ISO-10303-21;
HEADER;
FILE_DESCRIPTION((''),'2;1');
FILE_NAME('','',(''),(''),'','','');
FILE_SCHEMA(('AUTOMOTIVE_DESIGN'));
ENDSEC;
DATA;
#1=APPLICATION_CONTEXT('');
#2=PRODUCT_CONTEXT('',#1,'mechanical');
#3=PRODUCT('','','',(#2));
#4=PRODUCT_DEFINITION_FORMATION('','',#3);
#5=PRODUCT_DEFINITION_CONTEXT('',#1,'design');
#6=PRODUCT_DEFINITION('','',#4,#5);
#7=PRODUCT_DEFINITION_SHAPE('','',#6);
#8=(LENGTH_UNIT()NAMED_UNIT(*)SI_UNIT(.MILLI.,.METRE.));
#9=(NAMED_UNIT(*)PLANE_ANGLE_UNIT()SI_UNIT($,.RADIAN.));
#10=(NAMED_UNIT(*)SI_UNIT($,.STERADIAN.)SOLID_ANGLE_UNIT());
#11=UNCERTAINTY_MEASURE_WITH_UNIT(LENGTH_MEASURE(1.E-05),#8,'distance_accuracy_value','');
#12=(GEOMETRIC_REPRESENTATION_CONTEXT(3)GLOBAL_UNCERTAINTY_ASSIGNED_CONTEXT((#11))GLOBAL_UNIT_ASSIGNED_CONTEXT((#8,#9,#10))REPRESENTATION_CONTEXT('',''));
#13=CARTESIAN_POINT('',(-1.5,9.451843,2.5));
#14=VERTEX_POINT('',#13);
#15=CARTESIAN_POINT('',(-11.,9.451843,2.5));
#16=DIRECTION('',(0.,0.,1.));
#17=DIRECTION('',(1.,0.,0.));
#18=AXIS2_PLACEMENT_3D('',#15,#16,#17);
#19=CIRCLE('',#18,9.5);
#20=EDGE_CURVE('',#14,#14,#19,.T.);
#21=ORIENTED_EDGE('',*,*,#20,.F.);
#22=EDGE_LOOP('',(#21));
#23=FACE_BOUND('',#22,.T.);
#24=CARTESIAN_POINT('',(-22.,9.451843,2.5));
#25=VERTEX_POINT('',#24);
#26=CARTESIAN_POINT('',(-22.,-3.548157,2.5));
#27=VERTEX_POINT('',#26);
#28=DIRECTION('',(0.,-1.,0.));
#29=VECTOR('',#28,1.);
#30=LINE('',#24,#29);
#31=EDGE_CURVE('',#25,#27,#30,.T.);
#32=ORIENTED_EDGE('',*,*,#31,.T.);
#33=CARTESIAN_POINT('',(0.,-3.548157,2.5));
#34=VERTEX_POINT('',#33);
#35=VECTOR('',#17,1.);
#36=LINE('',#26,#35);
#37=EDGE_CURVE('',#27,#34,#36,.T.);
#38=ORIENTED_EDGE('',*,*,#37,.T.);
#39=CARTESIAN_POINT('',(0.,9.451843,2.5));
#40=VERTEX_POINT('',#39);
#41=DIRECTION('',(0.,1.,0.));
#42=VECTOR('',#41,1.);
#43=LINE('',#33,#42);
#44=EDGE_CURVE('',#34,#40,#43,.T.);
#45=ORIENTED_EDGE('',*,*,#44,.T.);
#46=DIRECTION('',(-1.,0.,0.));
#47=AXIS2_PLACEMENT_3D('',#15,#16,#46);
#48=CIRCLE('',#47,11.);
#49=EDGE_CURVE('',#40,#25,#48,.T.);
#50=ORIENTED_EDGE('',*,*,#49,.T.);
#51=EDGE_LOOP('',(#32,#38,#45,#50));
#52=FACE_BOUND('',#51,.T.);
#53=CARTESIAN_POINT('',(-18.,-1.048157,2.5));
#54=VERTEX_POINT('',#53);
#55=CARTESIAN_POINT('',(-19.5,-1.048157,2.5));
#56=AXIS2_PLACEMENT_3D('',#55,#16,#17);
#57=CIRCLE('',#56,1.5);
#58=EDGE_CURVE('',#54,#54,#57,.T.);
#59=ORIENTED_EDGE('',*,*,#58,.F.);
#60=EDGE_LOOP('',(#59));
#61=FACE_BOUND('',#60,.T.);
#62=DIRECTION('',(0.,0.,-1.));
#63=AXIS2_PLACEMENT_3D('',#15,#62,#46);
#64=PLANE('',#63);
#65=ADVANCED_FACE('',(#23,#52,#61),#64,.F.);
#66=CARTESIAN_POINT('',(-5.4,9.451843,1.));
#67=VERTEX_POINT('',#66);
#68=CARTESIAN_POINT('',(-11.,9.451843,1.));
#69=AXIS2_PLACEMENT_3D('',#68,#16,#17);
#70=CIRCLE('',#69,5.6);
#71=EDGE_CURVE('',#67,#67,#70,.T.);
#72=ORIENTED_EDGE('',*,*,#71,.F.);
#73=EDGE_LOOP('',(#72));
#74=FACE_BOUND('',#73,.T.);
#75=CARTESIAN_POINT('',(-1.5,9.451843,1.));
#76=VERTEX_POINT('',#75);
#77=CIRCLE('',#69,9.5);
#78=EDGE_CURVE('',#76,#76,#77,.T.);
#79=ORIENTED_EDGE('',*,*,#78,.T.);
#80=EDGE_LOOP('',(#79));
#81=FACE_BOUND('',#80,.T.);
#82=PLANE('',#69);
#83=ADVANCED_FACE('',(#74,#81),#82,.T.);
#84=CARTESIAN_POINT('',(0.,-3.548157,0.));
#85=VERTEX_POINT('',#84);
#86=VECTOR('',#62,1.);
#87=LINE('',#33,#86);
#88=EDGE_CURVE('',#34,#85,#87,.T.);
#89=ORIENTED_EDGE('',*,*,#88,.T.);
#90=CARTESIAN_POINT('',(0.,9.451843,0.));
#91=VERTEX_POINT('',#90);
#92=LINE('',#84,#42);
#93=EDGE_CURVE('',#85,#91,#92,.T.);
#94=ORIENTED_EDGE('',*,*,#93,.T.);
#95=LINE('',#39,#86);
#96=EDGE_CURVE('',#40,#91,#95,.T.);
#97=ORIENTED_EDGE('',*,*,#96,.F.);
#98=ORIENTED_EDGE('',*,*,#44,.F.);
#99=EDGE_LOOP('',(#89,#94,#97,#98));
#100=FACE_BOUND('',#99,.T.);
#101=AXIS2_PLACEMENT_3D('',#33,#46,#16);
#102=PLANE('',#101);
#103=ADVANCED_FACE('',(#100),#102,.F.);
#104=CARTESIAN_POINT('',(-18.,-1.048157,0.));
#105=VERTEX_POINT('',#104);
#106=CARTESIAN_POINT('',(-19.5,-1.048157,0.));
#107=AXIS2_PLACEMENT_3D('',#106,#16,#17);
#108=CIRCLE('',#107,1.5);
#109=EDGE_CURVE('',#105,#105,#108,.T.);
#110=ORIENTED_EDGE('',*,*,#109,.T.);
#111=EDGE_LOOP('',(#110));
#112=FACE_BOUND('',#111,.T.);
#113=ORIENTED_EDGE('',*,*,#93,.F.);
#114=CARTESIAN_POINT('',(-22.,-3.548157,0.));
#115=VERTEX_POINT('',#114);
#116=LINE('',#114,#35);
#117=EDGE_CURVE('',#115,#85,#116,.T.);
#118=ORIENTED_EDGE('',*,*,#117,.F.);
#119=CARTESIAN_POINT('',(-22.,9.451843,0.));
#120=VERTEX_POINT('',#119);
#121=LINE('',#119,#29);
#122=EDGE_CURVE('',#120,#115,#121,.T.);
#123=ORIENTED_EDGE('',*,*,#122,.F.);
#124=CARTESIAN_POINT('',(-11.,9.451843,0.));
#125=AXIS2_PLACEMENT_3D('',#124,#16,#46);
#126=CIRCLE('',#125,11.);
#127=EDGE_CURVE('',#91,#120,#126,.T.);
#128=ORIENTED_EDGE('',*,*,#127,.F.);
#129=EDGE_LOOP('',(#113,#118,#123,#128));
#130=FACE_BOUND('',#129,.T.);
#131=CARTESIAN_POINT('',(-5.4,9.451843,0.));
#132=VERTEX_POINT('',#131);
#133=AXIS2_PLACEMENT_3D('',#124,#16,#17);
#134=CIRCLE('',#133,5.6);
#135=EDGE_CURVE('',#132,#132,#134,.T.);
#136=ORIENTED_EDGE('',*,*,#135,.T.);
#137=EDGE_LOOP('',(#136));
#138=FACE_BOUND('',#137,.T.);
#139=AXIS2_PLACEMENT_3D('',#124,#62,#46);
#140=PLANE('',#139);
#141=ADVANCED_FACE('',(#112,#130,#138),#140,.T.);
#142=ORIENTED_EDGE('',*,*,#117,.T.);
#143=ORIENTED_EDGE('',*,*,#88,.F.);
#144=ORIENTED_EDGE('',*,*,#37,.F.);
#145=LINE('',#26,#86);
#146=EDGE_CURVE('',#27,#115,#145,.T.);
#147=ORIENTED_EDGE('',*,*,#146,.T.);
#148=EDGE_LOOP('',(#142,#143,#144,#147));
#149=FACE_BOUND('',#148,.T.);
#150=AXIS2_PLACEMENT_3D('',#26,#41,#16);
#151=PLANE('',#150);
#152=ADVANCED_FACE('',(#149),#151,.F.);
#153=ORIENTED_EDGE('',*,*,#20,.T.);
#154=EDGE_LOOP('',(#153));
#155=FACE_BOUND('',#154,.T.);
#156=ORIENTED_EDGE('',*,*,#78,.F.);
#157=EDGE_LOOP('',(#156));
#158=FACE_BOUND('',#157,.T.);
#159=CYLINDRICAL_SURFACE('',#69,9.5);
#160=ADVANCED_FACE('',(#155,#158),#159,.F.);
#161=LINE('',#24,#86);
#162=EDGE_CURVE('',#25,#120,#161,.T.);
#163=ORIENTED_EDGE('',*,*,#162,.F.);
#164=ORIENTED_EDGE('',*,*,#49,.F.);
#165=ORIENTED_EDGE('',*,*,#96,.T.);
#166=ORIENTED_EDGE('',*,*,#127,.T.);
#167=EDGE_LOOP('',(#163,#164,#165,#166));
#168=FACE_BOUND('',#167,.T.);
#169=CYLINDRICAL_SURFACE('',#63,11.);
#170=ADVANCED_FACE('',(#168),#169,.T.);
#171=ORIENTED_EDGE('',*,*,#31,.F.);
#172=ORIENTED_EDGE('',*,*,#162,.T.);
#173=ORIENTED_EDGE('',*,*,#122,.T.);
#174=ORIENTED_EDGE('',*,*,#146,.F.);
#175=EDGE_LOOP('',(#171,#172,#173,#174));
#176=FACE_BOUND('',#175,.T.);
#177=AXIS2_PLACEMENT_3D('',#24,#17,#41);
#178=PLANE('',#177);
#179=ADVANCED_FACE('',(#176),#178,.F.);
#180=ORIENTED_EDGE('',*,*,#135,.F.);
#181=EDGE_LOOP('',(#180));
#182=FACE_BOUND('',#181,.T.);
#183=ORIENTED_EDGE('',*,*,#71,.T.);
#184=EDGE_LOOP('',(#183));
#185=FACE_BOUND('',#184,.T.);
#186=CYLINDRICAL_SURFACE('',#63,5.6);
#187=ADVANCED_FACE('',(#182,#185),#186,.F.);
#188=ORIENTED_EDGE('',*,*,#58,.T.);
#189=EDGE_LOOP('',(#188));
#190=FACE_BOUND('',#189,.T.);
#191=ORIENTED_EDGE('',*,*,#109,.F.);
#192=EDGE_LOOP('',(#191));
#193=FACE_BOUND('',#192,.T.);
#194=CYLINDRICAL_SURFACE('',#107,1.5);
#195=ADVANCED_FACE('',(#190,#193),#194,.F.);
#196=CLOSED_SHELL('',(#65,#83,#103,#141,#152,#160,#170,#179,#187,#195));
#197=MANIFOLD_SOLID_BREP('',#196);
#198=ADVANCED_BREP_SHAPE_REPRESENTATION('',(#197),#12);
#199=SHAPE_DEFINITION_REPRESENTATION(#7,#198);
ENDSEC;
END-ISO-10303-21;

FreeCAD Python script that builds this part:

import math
import FreeCAD as App
import Part
import Sketcher

V = App.Vector
Q = App.Units.Quantity

doc = App.newDocument("Part")
body = doc.addObject("PartDesign::Body", "Body")

# Sketch on XY plane
sketch1 = doc.addObject("Sketcher::SketchObject", "Sketch")
body.addObject(sketch1)
sketch1.AttachmentSupport = (doc.XY_Plane, [""])
sketch1.MapMode = "FlatFace"
sketch1.addGeometry([
    Part.LineSegment(V(-22, 9, 0), V(-22, -4, 0)),  # 0
    Part.LineSegment(V(-22, -4, 0), V(0, -4, 0)),  # 1
    Part.LineSegment(V(0, -4, 0), V(0, 9, 0)),  # 2
    Part.ArcOfCircle(Part.Circle(V(-11, 9, 0), V(0, 0, 1), 11), math.radians(0), math.radians(180)),  # 3
    Part.Circle(V(-11, 9, 0), V(0, 0, 1), 6),  # 4
], False)
sketch1.addConstraint([
    Sketcher.Constraint("Coincident", 0, 2, 1, 1),
    Sketcher.Constraint("Coincident", 1, 2, 2, 1),
    Sketcher.Constraint("Tangent", 2, 2, 3, 1),
    Sketcher.Constraint("Tangent", 3, 2, 0, 1),
    Sketcher.Constraint("Vertical", 0),
    Sketcher.Constraint("Horizontal", 1),
    Sketcher.Constraint("Vertical", 2),
    Sketcher.Constraint("Coincident", 4, 3, 3, 3),
    Sketcher.Constraint("PointOnObject", 1, 2, -2),
    Sketcher.Constraint("Radius", 3, Q("11 mm")),
    Sketcher.Constraint("Diameter", 4, Q("11.2 mm")),
    Sketcher.Constraint("DistanceY", 0, 2, 0, 1, Q("13 mm")),
    Sketcher.Constraint("DistanceY", -1, 1, 3, 3, Q("9.451843 mm")),
])
pad1 = doc.addObject("PartDesign::Pad", "Pad")
body.addObject(pad1)
pad1.Profile = sketch1
pad1.Length = 2.5

# Sketch on XY plane
sketch2 = doc.addObject("Sketcher::SketchObject", "Sketch001")
body.addObject(sketch2)
sketch2.AttachmentSupport = (doc.XY_Plane, [""])
sketch2.MapMode = "FlatFace"
sketch2.AttachmentOffset = App.Placement(V(0, 0, 2.5), App.Rotation())
sketch2.addGeometry(Part.Circle(V(-11, 9, 0), V(0, 0, 1), 10), False)
sketch2.addConstraint([
    Sketcher.Constraint("Diameter", 0, Q("19 mm")),
    Sketcher.Constraint("DistanceX", 0, 3, -1, 1, Q("11 mm")),
    Sketcher.Constraint("DistanceY", -1, 1, 0, 3, Q("9.451843 mm")),
])
pocket1 = doc.addObject("PartDesign::Pocket", "Pocket")
body.addObject(pocket1)
pocket1.Profile = sketch2
pocket1.Length = 1.5

# Sketch on XY plane
sketch3 = doc.addObject("Sketcher::SketchObject", "Sketch002")
body.addObject(sketch3)
sketch3.AttachmentSupport = (doc.XY_Plane, [""])
sketch3.MapMode = "FlatFace"
sketch3.AttachmentOffset = App.Placement(V(0, 0, 2.5), App.Rotation())
sketch3.addGeometry(Part.Circle(V(-19.5, -1, 0), V(0, 0, 1), 1.5), False)
sketch3.addConstraint([
    Sketcher.Constraint("Diameter", 0, Q("3 mm")),
    Sketcher.Constraint("DistanceX", 0, 3, -1, 1, Q("19.5 mm")),
    Sketcher.Constraint("DistanceY", 0, 3, -1, 1, Q("1.048157 mm")),
])
pocket2 = doc.addObject("PartDesign::Pocket", "Pocket001")
body.addObject(pocket2)
pocket2.Profile = sketch3
pocket2.Type = "ThroughAll"

doc.recompute()
